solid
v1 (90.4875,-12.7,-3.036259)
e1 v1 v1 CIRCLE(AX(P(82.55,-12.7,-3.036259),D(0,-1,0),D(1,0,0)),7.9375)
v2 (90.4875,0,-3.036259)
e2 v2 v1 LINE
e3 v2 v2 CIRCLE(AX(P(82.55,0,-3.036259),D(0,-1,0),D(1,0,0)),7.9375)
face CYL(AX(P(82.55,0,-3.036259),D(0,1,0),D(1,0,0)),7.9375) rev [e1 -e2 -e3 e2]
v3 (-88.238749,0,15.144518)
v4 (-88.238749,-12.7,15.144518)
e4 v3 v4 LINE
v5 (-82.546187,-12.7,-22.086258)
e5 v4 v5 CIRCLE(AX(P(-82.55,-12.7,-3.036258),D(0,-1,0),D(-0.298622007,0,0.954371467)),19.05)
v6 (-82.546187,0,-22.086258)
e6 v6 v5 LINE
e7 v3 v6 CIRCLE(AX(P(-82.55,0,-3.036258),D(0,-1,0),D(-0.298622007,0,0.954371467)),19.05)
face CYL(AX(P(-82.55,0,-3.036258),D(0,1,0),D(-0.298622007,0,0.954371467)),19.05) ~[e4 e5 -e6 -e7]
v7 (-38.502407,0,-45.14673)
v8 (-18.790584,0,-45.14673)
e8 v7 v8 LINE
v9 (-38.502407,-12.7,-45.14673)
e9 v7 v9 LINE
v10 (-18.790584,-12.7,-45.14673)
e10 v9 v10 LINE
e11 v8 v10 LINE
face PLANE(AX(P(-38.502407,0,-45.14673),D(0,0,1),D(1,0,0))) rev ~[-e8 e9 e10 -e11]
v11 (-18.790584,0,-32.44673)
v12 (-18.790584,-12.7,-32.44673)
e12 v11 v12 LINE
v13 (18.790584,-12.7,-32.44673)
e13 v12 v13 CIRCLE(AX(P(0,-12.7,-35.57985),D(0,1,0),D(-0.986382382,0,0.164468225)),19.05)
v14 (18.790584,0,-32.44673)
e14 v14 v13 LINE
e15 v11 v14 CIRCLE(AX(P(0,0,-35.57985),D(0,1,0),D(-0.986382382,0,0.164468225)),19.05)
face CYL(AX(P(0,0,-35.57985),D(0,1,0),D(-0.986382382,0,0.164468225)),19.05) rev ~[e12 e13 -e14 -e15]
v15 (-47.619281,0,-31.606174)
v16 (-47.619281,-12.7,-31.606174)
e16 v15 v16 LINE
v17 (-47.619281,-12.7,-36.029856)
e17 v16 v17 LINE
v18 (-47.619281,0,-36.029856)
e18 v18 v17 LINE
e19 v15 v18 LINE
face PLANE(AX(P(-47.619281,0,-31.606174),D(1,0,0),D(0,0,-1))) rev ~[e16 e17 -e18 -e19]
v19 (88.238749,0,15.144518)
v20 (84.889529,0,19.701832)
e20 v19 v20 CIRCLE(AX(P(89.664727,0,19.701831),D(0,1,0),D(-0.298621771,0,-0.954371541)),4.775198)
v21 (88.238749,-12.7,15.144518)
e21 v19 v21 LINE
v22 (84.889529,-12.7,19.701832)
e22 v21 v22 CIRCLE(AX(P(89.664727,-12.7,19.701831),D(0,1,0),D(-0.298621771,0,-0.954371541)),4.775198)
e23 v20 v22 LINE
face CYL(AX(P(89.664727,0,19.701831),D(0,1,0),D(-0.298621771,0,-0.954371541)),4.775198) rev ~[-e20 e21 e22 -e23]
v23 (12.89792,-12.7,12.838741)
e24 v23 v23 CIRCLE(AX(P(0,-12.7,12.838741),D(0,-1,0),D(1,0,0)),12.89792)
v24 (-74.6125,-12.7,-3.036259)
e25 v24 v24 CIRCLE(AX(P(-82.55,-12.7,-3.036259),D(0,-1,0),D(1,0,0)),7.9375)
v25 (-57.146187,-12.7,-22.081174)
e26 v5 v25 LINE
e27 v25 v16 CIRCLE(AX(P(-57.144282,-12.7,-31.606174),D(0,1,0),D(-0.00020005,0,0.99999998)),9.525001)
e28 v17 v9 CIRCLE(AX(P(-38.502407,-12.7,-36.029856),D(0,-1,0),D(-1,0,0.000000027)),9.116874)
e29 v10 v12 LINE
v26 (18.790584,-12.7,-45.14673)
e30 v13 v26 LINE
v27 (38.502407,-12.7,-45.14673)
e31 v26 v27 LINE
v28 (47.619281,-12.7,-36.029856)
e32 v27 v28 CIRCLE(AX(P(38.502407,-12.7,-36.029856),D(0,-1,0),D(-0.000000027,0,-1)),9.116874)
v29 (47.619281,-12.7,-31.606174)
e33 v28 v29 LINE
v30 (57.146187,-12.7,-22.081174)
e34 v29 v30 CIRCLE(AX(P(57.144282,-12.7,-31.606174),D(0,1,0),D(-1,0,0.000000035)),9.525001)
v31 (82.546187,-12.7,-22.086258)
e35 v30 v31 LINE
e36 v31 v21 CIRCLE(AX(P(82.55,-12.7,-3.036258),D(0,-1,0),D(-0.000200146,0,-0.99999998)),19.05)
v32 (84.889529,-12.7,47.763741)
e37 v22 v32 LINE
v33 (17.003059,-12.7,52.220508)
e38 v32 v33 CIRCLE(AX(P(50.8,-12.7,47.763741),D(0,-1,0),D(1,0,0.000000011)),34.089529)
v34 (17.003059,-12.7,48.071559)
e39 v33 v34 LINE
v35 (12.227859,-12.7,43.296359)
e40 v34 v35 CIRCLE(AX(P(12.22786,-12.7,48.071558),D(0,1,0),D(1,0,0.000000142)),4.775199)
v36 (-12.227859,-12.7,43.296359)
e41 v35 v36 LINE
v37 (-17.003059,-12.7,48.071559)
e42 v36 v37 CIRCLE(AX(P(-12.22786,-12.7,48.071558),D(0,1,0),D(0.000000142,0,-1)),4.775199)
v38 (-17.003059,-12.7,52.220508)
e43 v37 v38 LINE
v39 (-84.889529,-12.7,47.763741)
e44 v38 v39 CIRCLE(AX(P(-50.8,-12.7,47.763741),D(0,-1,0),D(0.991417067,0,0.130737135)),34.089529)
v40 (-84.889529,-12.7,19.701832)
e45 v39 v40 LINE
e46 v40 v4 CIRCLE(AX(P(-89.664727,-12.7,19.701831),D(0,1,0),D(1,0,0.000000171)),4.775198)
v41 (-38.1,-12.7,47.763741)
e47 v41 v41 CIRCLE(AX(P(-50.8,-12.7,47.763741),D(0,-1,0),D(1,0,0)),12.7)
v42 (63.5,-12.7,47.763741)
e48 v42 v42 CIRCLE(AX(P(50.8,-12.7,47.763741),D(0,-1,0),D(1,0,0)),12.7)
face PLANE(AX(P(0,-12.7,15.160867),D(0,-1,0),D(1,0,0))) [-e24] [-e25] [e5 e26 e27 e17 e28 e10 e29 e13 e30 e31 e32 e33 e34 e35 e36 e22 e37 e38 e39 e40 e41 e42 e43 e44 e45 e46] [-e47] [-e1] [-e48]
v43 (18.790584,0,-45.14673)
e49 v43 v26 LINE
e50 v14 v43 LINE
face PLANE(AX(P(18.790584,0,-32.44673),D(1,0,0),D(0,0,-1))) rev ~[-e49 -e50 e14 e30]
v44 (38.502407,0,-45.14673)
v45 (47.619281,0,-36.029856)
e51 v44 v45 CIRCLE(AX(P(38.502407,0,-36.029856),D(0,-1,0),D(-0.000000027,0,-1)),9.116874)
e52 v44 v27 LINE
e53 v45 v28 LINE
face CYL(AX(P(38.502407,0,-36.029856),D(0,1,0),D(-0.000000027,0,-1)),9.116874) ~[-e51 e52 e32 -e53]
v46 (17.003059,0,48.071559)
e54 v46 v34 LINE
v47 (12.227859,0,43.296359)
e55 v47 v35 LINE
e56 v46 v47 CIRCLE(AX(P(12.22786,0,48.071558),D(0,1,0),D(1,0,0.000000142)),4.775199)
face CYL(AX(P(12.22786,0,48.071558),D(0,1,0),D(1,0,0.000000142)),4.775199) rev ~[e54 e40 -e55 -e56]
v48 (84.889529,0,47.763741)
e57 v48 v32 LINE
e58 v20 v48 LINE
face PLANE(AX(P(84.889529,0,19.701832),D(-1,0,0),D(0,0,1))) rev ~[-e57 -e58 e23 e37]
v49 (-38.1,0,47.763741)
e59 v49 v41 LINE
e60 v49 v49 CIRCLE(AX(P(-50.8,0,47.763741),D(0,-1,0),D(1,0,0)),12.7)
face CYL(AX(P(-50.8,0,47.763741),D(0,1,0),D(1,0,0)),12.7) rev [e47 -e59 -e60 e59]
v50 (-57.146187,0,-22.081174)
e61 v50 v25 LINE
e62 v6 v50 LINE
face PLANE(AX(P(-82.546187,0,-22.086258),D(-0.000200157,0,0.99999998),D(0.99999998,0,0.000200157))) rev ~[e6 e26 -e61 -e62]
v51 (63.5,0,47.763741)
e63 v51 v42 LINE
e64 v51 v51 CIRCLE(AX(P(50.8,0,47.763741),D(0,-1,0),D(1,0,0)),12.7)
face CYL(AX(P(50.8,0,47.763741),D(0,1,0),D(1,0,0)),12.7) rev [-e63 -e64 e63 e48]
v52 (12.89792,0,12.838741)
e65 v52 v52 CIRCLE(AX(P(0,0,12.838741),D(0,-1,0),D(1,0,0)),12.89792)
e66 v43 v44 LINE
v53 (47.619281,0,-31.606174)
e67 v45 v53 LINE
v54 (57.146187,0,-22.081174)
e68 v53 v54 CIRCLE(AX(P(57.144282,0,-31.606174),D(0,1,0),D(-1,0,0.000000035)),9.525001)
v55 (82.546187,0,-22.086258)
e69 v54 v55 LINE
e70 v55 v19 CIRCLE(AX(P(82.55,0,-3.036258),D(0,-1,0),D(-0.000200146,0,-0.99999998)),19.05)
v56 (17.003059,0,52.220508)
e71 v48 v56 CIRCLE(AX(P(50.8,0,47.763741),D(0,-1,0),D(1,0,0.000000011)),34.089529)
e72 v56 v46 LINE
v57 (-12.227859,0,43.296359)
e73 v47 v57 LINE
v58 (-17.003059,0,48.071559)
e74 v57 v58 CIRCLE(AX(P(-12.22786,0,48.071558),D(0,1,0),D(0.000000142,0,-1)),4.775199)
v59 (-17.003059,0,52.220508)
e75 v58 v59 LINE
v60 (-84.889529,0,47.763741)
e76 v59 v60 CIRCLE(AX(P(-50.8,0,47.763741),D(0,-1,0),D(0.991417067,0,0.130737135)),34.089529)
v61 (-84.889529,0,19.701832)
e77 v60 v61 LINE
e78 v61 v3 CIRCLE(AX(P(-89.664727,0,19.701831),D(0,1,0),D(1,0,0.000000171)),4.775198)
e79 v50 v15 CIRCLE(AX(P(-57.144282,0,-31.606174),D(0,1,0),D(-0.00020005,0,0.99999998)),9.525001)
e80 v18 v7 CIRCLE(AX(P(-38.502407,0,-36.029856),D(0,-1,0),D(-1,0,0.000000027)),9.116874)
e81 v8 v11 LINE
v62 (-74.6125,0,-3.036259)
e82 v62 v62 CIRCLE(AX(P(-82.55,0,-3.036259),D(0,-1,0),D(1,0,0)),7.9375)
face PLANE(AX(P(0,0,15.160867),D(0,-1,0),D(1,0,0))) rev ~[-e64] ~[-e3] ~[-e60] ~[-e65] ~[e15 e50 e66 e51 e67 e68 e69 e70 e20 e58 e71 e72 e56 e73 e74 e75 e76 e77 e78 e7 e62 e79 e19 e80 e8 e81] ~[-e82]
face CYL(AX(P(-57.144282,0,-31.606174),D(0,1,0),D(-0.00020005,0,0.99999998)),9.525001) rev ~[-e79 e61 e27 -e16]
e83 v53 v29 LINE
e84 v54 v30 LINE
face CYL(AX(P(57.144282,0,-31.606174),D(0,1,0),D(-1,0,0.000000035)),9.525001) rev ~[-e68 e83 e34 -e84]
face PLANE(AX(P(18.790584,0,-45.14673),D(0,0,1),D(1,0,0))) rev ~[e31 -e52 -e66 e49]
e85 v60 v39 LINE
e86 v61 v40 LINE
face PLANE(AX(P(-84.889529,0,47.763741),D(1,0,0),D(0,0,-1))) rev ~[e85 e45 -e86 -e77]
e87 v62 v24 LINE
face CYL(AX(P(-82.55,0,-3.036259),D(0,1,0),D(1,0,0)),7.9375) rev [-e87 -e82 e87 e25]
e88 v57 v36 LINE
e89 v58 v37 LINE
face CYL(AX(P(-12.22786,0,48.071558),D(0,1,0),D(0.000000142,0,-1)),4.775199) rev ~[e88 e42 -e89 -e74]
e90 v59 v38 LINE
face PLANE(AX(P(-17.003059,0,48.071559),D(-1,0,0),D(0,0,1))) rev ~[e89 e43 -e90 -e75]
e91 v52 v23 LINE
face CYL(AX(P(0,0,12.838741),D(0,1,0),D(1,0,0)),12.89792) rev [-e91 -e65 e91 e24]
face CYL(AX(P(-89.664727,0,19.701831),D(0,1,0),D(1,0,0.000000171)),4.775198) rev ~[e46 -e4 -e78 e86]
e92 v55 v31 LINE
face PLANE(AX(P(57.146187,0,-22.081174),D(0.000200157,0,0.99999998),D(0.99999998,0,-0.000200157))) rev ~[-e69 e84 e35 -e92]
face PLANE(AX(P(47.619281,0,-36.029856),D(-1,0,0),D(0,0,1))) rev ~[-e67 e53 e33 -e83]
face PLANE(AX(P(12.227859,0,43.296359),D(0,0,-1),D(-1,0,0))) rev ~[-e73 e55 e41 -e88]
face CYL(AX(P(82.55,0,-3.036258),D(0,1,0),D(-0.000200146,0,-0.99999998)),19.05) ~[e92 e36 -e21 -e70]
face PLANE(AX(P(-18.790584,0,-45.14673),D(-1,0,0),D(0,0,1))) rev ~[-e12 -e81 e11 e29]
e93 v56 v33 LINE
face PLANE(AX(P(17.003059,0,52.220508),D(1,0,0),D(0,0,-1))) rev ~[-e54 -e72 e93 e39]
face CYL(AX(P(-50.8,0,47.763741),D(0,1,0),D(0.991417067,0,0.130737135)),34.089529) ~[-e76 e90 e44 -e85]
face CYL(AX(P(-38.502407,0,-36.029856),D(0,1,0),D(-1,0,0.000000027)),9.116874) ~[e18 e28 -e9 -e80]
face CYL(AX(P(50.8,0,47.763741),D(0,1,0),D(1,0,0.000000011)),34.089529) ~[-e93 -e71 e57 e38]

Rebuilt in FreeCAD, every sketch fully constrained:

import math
import FreeCAD as App
import Part
import Sketcher
Q = App.Units.Quantity

doc = App.newDocument("Part")
body = doc.addObject("PartDesign::Body", "Body")

sketch1 = body.newObject("Sketcher::SketchObject", "Sketch")
sketch1.AttachmentSupport = (doc.getObject("XZ_Plane"), [""])
sketch1.MapMode = "FlatFace"
sketch1.addGeometry([
    Part.ArcOfCircle(Part.Circle(App.Vector(50.8, 47.763741, 0), App.Vector(0, 0, 1), 34.089529), math.radians(0.000001), math.radians(172.487809)),
    Part.LineSegment(App.Vector(17.003059, 52.220508, 0), App.Vector(17.003059, 48.071559, 0)),
    Part.ArcOfCircle(Part.Circle(App.Vector(12.22786, 48.071558, 0), App.Vector(0, 0, 1), 4.775199), math.radians(-90.000008), math.radians(0.000008)),
    Part.LineSegment(App.Vector(12.227859, 43.296359, 0), App.Vector(-12.227859, 43.296359, 0)),
    Part.ArcOfCircle(Part.Circle(App.Vector(-12.22786, 48.071558, 0), App.Vector(0, 0, 1), 4.775199), math.radians(179.999992), math.radians(270.000008)),
    Part.LineSegment(App.Vector(-17.003059, 48.071559, 0), App.Vector(-17.003059, 52.220508, 0)),
    Part.ArcOfCircle(Part.Circle(App.Vector(-50.8, 47.763741, 0), App.Vector(0, 0, 1), 34.089529), math.radians(7.512191), math.radians(179.999999)),
    Part.LineSegment(App.Vector(-84.889529, 47.763741, 0), App.Vector(-84.889529, 19.701832, 0)),
    Part.ArcOfCircle(Part.Circle(App.Vector(-89.664727, 19.701831, 0), App.Vector(0, 0, 1), 4.775198), math.radians(-72.625158), math.radians(0.00001)),
    Part.ArcOfCircle(Part.Circle(App.Vector(-82.55, -3.036258, 0), App.Vector(0, 0, 1), 19.05), math.radians(107.374856), math.radians(270.011468)),
    Part.LineSegment(App.Vector(-82.546187, -22.086258, 0), App.Vector(-57.146187, -22.081174, 0)),
    Part.ArcOfCircle(Part.Circle(App.Vector(-57.144282, -31.606174, 0), App.Vector(0, 0, 1), 9.525001), math.radians(0.000002), math.radians(90.011462)),
    Part.LineSegment(App.Vector(-47.619281, -31.606174, 0), App.Vector(-47.619281, -36.029856, 0)),
    Part.ArcOfCircle(Part.Circle(App.Vector(-38.502407, -36.029856, 0), App.Vector(0, 0, 1), 9.116874), math.radians(179.999998), math.radians(270.000002)),
    Part.LineSegment(App.Vector(-38.502407, -45.14673, 0), App.Vector(-18.790584, -45.14673, 0)),
    Part.LineSegment(App.Vector(-18.790584, -45.14673, 0), App.Vector(-18.790584, -32.44673, 0)),
    Part.ArcOfCircle(Part.Circle(App.Vector(0, -35.57985, 0), App.Vector(0, 0, 1), 19.05), math.radians(9.466344), math.radians(170.533656)),
    Part.LineSegment(App.Vector(18.790584, -32.44673, 0), App.Vector(18.790584, -45.14673, 0)),
    Part.LineSegment(App.Vector(18.790584, -45.14673, 0), App.Vector(38.502407, -45.14673, 0)),
    Part.ArcOfCircle(Part.Circle(App.Vector(38.502407, -36.029856, 0), App.Vector(0, 0, 1), 9.116874), math.radians(-90.000002), math.radians(0.000002)),
    Part.LineSegment(App.Vector(47.619281, -36.029856, 0), App.Vector(47.619281, -31.606174, 0)),
    Part.ArcOfCircle(Part.Circle(App.Vector(57.144282, -31.606174, 0), App.Vector(0, 0, 1), 9.525001), math.radians(89.988538), math.radians(179.999998)),
    Part.LineSegment(App.Vector(57.146187, -22.081174, 0), App.Vector(82.546187, -22.086258, 0)),
    Part.ArcOfCircle(Part.Circle(App.Vector(82.55, -3.036258, 0), App.Vector(0, 0, 1), 19.05), math.radians(-90.011468), math.radians(72.625144)),
    Part.ArcOfCircle(Part.Circle(App.Vector(89.664727, 19.701831, 0), App.Vector(0, 0, 1), 4.775198), math.radians(179.99999), math.radians(252.625158)),
    Part.LineSegment(App.Vector(84.889529, 19.701832, 0), App.Vector(84.889529, 47.763741, 0)),
    Part.Circle(App.Vector(-82.55, -3.036259, 0), App.Vector(0, 0, 1), 7.9375),
    Part.Circle(App.Vector(82.55, -3.036259, 0), App.Vector(0, 0, 1), 7.9375),
    Part.Circle(App.Vector(0, 12.838741, 0), App.Vector(0, 0, 1), 12.89792),
    Part.Circle(App.Vector(-50.8, 47.763741, 0), App.Vector(0, 0, 1), 12.7),
    Part.Circle(App.Vector(50.8, 47.763741, 0), App.Vector(0, 0, 1), 12.7),
], False)
sketch1.addConstraint([
    Sketcher.Constraint("Coincident", 0, 2, 1, 1),
    Sketcher.Constraint("Tangent", 1, 2, 2, 2),
    Sketcher.Constraint("Tangent", 2, 1, 3, 1),
    Sketcher.Constraint("Tangent", 3, 2, 4, 2),
    Sketcher.Constraint("Tangent", 4, 1, 5, 1),
    Sketcher.Constraint("Coincident", 5, 2, 6, 1),
    Sketcher.Constraint("Tangent", 6, 2, 7, 1),
    Sketcher.Constraint("Tangent", 7, 2, 8, 2),
    Sketcher.Constraint("Tangent", 8, 1, 9, 1),
    Sketcher.Constraint("Tangent", 9, 2, 10, 1),
    Sketcher.Constraint("Tangent", 10, 2, 11, 2),
    Sketcher.Constraint("Tangent", 11, 1, 12, 1),
    Sketcher.Constraint("Tangent", 12, 2, 13, 1),
    Sketcher.Constraint("Tangent", 13, 2, 14, 1),
    Sketcher.Constraint("Coincident", 14, 2, 15, 1),
    Sketcher.Constraint("Coincident", 15, 2, 16, 2),
    Sketcher.Constraint("Coincident", 16, 1, 17, 1),
    Sketcher.Constraint("Coincident", 17, 2, 18, 1),
    Sketcher.Constraint("Tangent", 18, 2, 19, 1),
    Sketcher.Constraint("Tangent", 19, 2, 20, 1),
    Sketcher.Constraint("Tangent", 20, 2, 21, 2),
    Sketcher.Constraint("Tangent", 21, 1, 22, 1),
    Sketcher.Constraint("Tangent", 22, 2, 23, 1),
    Sketcher.Constraint("Tangent", 23, 2, 24, 2),
    Sketcher.Constraint("Tangent", 24, 1, 25, 1),
    Sketcher.Constraint("Tangent", 25, 2, 0, 1),
    Sketcher.Constraint("Vertical", 1),
    Sketcher.Constraint("Horizontal", 3),
    Sketcher.Constraint("Vertical", 5),
    Sketcher.Constraint("Vertical", 7),
    Sketcher.Constraint("Vertical", 12),
    Sketcher.Constraint("Horizontal", 14),
    Sketcher.Constraint("Vertical", 15),
    Sketcher.Constraint("Vertical", 17),
    Sketcher.Constraint("Horizontal", 18),
    Sketcher.Constraint("Vertical", 20),
    Sketcher.Constraint("Vertical", 25),
    Sketcher.Constraint("Coincident", 26, 3, 9, 3),
    Sketcher.Constraint("Coincident", 27, 3, 23, 3),
    Sketcher.Constraint("Coincident", 29, 3, 6, 3),
    Sketcher.Constraint("Coincident", 30, 3, 0, 3),
    Sketcher.Constraint("Equal", 2, 4),
    Sketcher.Constraint("Equal", 0, 6),
    Sketcher.Constraint("Equal", 4, 8),
    Sketcher.Constraint("Equal", 9, 16),
    Sketcher.Constraint("Equal", 13, 19),
    Sketcher.Constraint("Equal", 11, 21),
    Sketcher.Constraint("Equal", 16, 23),
    Sketcher.Constraint("Equal", 8, 24),
    Sketcher.Constraint("Equal", 26, 27),
    Sketcher.Constraint("Equal", 29, 30),
    Sketcher.Constraint("Symmetric", 0, 3, 6, 3, -2),
    Sketcher.Constraint("Symmetric", 13, 3, 19, 3, -2),
    Sketcher.Constraint("Symmetric", 9, 3, 23, 3, -2),
    Sketcher.Constraint("Symmetric", 15, 2, 16, 1, -2),
    Sketcher.Constraint("PointOnObject", 28, 3, -2),
    Sketcher.Constraint("Horizontal", 11, 3, 21, 3),
    Sketcher.Constraint("Horizontal", 0, 2, 5, 2),
    Sketcher.Constraint("Diameter", 29, Q("1 in")),
    Sketcher.Constraint("Radius", 9, Q("0.75 in")),
    Sketcher.Constraint("Distance", 10, Q("1 in")),
    Sketcher.Constraint("Diameter", 26, Q("0.625 in")),
    Sketcher.Constraint("DistanceY", 15, 1, 15, 2, Q("0.5 in")),
    Sketcher.Constraint("DistanceX", -1, 1, 0, 3, Q("2 in")),
    Sketcher.Constraint("Radius", 2, Q("0.188 in")),
    Sketcher.Constraint("Radius", 11, Q("0.375 in")),
    Sketcher.Constraint("DistanceY", 9, 3, 6, 3, Q("2 in")),
    Sketcher.Constraint("DistanceX", 9, 3, -1, 1, Q("3.25 in")),
    Sketcher.Constraint("Diameter", 28, 25.79584),
    Sketcher.Constraint("Radius", 0, 34.089529),
    Sketcher.Constraint("DistanceY", 28, 3, 0, 3, Q("1.375 in")),
    Sketcher.Constraint("Radius", 13, 9.116874),
    Sketcher.Constraint("DistanceY", 11, 3, 9, 3, Q("1.1247998 in")),
    Sketcher.Constraint("DistanceX", 3, 2, 3, 1, 24.455718),
    Sketcher.Constraint("DistanceY", 1, 2, 1, 1, 4.148949),
    Sketcher.Constraint("DistanceY", 12, 2, 9, 2, 13.943598),
    Sketcher.Constraint("DistanceX", 14, 1, 14, 2, 19.711823),
    Sketcher.Constraint("DistanceY", -1, 1, 0, 3, 47.763741),
])
pad1 = body.newObject("PartDesign::Pad", "Pad")
pad1.Profile = sketch1
pad1.Length = Q("0.5 in")

doc.recompute()
